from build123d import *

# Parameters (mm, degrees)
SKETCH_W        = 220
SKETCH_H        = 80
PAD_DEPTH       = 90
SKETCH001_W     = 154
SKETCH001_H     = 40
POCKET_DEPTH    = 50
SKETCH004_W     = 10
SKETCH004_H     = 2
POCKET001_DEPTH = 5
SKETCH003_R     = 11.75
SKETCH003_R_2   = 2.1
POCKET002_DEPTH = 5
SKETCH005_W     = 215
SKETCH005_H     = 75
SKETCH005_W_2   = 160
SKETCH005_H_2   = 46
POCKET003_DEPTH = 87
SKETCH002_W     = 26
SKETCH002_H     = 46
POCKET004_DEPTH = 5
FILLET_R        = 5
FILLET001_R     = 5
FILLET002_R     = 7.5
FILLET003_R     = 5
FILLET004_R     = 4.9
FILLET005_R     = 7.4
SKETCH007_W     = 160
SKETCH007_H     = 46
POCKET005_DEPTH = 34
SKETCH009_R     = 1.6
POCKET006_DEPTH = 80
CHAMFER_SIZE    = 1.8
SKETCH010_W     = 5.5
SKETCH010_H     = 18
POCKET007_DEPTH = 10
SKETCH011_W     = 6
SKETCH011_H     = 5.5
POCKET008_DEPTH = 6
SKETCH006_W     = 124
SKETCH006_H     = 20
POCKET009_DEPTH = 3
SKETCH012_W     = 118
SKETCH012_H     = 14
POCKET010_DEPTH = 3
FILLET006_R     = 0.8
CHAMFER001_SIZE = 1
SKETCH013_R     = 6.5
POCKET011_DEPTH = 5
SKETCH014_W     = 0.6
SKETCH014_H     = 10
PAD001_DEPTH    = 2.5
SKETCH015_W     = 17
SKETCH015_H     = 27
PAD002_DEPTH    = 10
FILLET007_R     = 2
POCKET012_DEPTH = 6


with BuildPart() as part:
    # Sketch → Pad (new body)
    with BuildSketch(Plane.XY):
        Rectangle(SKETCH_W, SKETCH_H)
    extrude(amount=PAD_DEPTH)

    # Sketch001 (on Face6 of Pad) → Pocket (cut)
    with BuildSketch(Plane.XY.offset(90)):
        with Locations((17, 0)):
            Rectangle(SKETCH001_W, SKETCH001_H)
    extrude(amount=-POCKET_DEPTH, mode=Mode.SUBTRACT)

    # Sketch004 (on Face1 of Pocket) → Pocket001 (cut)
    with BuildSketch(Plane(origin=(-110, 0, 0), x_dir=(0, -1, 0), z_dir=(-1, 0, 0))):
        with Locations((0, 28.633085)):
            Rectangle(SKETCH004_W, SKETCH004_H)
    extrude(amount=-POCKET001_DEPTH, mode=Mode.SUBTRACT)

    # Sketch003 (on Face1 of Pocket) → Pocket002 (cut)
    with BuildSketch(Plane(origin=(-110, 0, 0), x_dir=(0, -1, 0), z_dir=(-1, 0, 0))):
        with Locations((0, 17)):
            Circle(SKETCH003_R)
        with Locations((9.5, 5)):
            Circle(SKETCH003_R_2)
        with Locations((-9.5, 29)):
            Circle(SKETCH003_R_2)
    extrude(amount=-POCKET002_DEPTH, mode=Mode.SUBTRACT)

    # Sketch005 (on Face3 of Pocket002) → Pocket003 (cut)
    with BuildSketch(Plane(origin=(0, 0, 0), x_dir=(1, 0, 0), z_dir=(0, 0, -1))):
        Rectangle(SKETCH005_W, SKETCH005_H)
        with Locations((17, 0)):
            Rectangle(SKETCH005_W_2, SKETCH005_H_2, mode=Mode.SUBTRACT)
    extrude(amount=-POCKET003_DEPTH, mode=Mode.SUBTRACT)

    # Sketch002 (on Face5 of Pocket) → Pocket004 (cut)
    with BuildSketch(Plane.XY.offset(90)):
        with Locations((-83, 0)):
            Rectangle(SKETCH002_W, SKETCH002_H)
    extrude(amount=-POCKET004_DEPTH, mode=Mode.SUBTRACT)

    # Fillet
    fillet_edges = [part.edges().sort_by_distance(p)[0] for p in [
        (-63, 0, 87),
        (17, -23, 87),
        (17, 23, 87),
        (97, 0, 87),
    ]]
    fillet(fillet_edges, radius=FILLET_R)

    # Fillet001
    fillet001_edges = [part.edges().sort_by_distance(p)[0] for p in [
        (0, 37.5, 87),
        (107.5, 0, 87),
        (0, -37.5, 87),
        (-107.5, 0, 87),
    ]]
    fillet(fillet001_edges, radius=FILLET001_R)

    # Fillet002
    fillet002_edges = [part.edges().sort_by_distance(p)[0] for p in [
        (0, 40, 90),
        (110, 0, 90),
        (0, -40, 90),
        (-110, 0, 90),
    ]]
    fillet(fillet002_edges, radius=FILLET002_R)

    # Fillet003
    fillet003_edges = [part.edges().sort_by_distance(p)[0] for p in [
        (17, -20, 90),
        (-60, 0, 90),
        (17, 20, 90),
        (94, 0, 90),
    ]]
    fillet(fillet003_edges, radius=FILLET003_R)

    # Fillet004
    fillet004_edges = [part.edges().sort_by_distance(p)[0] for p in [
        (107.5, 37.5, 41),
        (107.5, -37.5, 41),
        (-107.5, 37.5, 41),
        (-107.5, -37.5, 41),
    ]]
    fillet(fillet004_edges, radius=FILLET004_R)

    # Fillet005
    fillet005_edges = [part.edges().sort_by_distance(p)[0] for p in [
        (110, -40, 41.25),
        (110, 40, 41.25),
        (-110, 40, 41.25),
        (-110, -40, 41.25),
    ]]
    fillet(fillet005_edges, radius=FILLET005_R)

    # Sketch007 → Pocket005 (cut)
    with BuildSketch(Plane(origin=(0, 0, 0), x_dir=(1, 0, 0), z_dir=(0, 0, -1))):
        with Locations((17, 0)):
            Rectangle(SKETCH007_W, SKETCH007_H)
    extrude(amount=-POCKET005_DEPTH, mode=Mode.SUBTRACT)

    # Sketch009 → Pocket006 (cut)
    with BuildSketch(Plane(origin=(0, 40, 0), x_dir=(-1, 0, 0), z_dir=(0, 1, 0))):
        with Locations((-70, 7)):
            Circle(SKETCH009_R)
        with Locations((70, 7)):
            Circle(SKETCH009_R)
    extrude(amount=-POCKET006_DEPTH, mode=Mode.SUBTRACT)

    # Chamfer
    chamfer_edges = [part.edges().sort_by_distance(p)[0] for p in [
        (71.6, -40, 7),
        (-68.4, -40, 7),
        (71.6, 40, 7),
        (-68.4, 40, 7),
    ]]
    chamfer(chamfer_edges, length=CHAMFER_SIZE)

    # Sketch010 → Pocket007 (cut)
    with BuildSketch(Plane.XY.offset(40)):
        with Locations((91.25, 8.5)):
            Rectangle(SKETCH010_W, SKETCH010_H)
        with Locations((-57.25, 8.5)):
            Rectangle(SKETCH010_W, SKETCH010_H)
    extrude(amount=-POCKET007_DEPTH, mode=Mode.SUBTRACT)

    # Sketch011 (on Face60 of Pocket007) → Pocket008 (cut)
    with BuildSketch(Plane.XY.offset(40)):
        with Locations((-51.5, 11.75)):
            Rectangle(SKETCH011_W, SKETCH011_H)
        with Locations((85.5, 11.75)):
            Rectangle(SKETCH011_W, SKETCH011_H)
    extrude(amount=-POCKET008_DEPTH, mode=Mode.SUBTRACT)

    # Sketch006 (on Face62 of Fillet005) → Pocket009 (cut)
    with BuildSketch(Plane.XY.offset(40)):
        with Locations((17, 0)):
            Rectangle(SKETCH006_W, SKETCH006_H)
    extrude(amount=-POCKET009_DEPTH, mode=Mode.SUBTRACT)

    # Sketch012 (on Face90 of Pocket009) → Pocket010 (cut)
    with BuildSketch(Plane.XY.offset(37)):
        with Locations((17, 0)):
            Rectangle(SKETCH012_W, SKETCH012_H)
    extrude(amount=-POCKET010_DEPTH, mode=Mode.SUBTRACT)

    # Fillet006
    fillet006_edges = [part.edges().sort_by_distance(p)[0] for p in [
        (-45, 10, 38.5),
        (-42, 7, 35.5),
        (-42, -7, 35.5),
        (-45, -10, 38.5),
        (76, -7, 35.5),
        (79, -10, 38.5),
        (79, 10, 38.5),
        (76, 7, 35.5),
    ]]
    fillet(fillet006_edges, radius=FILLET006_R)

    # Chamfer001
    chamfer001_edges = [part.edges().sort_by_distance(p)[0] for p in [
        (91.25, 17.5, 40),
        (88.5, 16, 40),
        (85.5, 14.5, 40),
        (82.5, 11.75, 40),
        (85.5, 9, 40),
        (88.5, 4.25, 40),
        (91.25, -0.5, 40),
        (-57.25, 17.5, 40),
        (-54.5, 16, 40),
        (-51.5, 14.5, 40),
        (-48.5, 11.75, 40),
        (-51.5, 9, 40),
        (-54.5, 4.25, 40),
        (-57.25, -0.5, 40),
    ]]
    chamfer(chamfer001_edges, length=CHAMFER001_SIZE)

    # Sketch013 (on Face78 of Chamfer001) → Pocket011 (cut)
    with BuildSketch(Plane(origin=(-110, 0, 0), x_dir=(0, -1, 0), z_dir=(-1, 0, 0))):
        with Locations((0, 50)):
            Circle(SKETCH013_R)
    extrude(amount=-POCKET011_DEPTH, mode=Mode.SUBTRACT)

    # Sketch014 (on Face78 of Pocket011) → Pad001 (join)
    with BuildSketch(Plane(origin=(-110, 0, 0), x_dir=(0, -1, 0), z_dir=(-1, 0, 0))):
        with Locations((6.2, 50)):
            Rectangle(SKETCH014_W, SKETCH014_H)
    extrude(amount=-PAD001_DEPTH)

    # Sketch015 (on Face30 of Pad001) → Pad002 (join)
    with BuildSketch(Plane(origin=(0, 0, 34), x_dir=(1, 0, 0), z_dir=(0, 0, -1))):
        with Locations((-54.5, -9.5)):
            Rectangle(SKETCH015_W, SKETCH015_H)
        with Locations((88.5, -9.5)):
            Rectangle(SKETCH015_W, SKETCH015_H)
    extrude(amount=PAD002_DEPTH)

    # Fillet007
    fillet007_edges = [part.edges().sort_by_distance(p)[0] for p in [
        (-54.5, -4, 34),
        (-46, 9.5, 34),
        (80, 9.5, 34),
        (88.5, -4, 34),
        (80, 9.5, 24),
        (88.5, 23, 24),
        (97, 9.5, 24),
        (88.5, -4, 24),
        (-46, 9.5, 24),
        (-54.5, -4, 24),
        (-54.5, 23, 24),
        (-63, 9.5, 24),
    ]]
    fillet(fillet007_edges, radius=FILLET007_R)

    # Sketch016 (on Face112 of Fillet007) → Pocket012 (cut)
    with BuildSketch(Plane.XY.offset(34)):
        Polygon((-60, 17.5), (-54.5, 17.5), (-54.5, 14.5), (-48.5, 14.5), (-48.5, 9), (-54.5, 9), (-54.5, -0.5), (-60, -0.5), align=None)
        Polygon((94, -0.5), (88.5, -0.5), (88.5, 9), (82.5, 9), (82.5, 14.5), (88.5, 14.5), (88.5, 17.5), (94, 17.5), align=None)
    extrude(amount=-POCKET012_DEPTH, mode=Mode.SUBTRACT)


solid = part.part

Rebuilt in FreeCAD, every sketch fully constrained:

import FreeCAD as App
import Part
import Sketcher
from FreeCAD import Vector


def edges_at(feature, points):
    """Names of the edges that pass closest to the given points."""
    edges = feature.Shape.Edges
    near = lambda p: min(range(len(edges)), key=lambda i: edges[i].distToShape(Part.Vertex(*p))[0])
    return sorted({f"Edge{near(p) + 1}" for p in points})


def add_polygon(sketch, points):
    """Adds a closed chain of lines whose ends are joined by coincident constraints."""
    first, n = sketch.GeometryCount, len(points)
    for a, b in zip(points, points[1:] + points[:1]):
        sketch.addGeometry(Part.LineSegment(App.Vector(*a, 0), App.Vector(*b, 0)), False)
    for i in range(n):
        sketch.addConstraint(Sketcher.Constraint("Coincident", first + i, 2, first + (i + 1) % n, 1))

doc = App.newDocument("Part")
body = doc.addObject("PartDesign::Body", "Body")

sketch1 = doc.addObject("Sketcher::SketchObject", "Sketch")
body.addObject(sketch1)
sketch1.AttachmentSupport = (doc.XY_Plane, [""])
sketch1.MapMode = "FlatFace"
add_polygon(sketch1, [(-110, 40), (-110, -40), (110, -40), (110, 40)])
sketch1.addConstraint(Sketcher.Constraint("Vertical", 0))
sketch1.addConstraint(Sketcher.Constraint("Horizontal", 1))
sketch1.addConstraint(Sketcher.Constraint("Vertical", 2))
sketch1.addConstraint(Sketcher.Constraint("Horizontal", 3))
sketch1.addConstraint(Sketcher.Constraint("Symmetric", 0, 2, 2, 2, -1, 1))
sketch1.addConstraint(Sketcher.Constraint("DistanceX", 1, 1, 1, 2, 220.0))
sketch1.addConstraint(Sketcher.Constraint("DistanceY", 0, 2, 0, 1, 80.0))
pad1 = doc.addObject("PartDesign::Pad", "Pad")
body.addObject(pad1)
pad1.Profile = sketch1
pad1.Length = 90

sketch2 = doc.addObject("Sketcher::SketchObject", "Sketch001")
body.addObject(sketch2)
sketch2.AttachmentSupport = (doc.XY_Plane, [""])
sketch2.MapMode = "FlatFace"
sketch2.AttachmentOffset = App.Placement(Vector(0, 0, 90), App.Rotation())
add_polygon(sketch2, [(-60, 20), (-60, -20), (94, -20), (94, 20)])
sketch2.addConstraint(Sketcher.Constraint("Vertical", 0))
sketch2.addConstraint(Sketcher.Constraint("Horizontal", 1))
sketch2.addConstraint(Sketcher.Constraint("Vertical", 2))
sketch2.addConstraint(Sketcher.Constraint("Horizontal", 3))
sketch2.addConstraint(Sketcher.Constraint("DistanceX", 1, 1, 1, 2, 154.0))
sketch2.addConstraint(Sketcher.Constraint("DistanceY", 0, 2, 0, 1, 40.0))
sketch2.addConstraint(Sketcher.Constraint("DistanceX", 0, 2, -1, 1, 60.0))
sketch2.addConstraint(Sketcher.Constraint("DistanceY", 0, 2, -1, 1, 20.0))
pocket1 = doc.addObject("PartDesign::Pocket", "Pocket")
body.addObject(pocket1)
pocket1.Profile = sketch2
pocket1.Length = 50

sketch3 = doc.addObject("Sketcher::SketchObject", "Sketch002")
body.addObject(sketch3)
sketch3.AttachmentSupport = (doc.YZ_Plane, [""])
sketch3.MapMode = "FlatFace"
sketch3.AttachmentOffset = App.Placement(Vector(0, 0, -110), App.Rotation())
add_polygon(sketch3, [(5, 29.6), (5, 27.6), (-5, 27.6), (-5, 29.6)])
sketch3.addConstraint(Sketcher.Constraint("Vertical", 0))
sketch3.addConstraint(Sketcher.Constraint("Horizontal", 1))
sketch3.addConstraint(Sketcher.Constraint("Vertical", 2))
sketch3.addConstraint(Sketcher.Constraint("Horizontal", 3))
sketch3.addConstraint(Sketcher.Constraint("DistanceX", 1, 2, 1, 1, 10.0))
sketch3.addConstraint(Sketcher.Constraint("DistanceY", 0, 2, 0, 1, 2.0))
sketch3.addConstraint(Sketcher.Constraint("DistanceX", -1, 1, 0, 2, 5.0))
sketch3.addConstraint(Sketcher.Constraint("DistanceY", -1, 1, 0, 2, 27.633085))
pocket2 = doc.addObject("PartDesign::Pocket", "Pocket001")
body.addObject(pocket2)
pocket2.Profile = sketch3
pocket2.Length = 5
pocket2.Reversed = True

sketch4 = doc.addObject("Sketcher::SketchObject", "Sketch003")
body.addObject(sketch4)
sketch4.AttachmentSupport = (doc.YZ_Plane, [""])
sketch4.MapMode = "FlatFace"
sketch4.AttachmentOffset = App.Placement(Vector(0, 0, -110), App.Rotation())
sketch4.addGeometry(Part.Circle(Vector(0, 17, 0), Vector(0, 0, 1), 11.8), False)
sketch4.addGeometry(Part.Circle(Vector(-9.5, 5, 0), Vector(0, 0, 1), 2.1), False)
sketch4.addGeometry(Part.Circle(Vector(9.5, 29, 0), Vector(0, 0, 1), 2.1), False)
sketch4.addConstraint(Sketcher.Constraint("Equal", 1, 2))
sketch4.addConstraint(Sketcher.Constraint("PointOnObject", 0, 3, -2))
sketch4.addConstraint(Sketcher.Constraint("Diameter", 0, 23.5))
sketch4.addConstraint(Sketcher.Constraint("Diameter", 1, 4.2))
sketch4.addConstraint(Sketcher.Constraint("DistanceY", -1, 1, 0, 3, 17.0))
sketch4.addConstraint(Sketcher.Constraint("DistanceY", -1, 1, 1, 3, 5.0))
sketch4.addConstraint(Sketcher.Constraint("DistanceY", -1, 1, 2, 3, 29.0))
sketch4.addConstraint(Sketcher.Constraint("DistanceX", 1, 3, 2, 3, 19.0))
sketch4.addConstraint(Sketcher.Constraint("DistanceX", 1, 3, -1, 1, 9.5))
pocket3 = doc.addObject("PartDesign::Pocket", "Pocket002")
body.addObject(pocket3)
pocket3.Profile = sketch4
pocket3.Length = 5
pocket3.Reversed = True

sketch5 = doc.addObject("Sketcher::SketchObject", "Sketch004")
body.addObject(sketch5)
sketch5.AttachmentSupport = (doc.XY_Plane, [""])
sketch5.MapMode = "FlatFace"
add_polygon(sketch5, [(-108, -38), (-108, 38), (108, 38), (108, -38)])
add_polygon(sketch5, [(97, 23), (-63, 23), (-63, -23), (97, -23)])
sketch5.addConstraint(Sketcher.Constraint("Vertical", 0))
sketch5.addConstraint(Sketcher.Constraint("Horizontal", 1))
sketch5.addConstraint(Sketcher.Constraint("Vertical", 2))
sketch5.addConstraint(Sketcher.Constraint("Horizontal", 3))
sketch5.addConstraint(Sketcher.Constraint("Horizontal", 4))
sketch5.addConstraint(Sketcher.Constraint("Vertical", 5))
sketch5.addConstraint(Sketcher.Constraint("Horizontal", 6))
sketch5.addConstraint(Sketcher.Constraint("Vertical", 7))
sketch5.addConstraint(Sketcher.Constraint("Symmetric", 0, 2, 2, 2, -1, 1))
sketch5.addConstraint(Sketcher.Constraint("DistanceX", 1, 1, 1, 2, 215.0))
sketch5.addConstraint(Sketcher.Constraint("DistanceX", 4, 2, 4, 1, 160.0))
sketch5.addConstraint(Sketcher.Constraint("DistanceY", 0, 1, 0, 2, 75.0))
sketch5.addConstraint(Sketcher.Constraint("DistanceY", 5, 2, 5, 1, 46.0))
sketch5.addConstraint(Sketcher.Constraint("DistanceX", 4, 2, -1, 1, 63.0))
sketch5.addConstraint(Sketcher.Constraint("DistanceY", -1, 1, 4, 2, 23.0))
pocket4 = doc.addObject("PartDesign::Pocket", "Pocket003")
body.addObject(pocket4)
pocket4.Profile = sketch5
pocket4.Length = 87
pocket4.Reversed = True

sketch6 = doc.addObject("Sketcher::SketchObject", "Sketch005")
body.addObject(sketch6)
sketch6.AttachmentSupport = (doc.XY_Plane, [""])
sketch6.MapMode = "FlatFace"
sketch6.AttachmentOffset = App.Placement(Vector(0, 0, 90), App.Rotation())
add_polygon(sketch6, [(-96, 23), (-96, -23), (-70, -23), (-70, 23)])
sketch6.addConstraint(Sketcher.Constraint("Vertical", 0))
sketch6.addConstraint(Sketcher.Constraint("Horizontal", 1))
sketch6.addConstraint(Sketcher.Constraint("Vertical", 2))
sketch6.addConstraint(Sketcher.Constraint("Horizontal", 3))
sketch6.addConstraint(Sketcher.Constraint("DistanceX", 1, 1, 1, 2, 26.0))
sketch6.addConstraint(Sketcher.Constraint("DistanceY", 0, 2, 0, 1, 46.0))
sketch6.addConstraint(Sketcher.Constraint("DistanceX", 0, 2, -1, 1, 96.0))
sketch6.addConstraint(Sketcher.Constraint("DistanceY", 0, 2, -1, 1, 23.0))
pocket5 = doc.addObject("PartDesign::Pocket", "Pocket004")
body.addObject(pocket5)
pocket5.Profile = sketch6
pocket5.Length = 5
doc.recompute()

fillet = doc.addObject("PartDesign::Fillet", "Fillet")
body.addObject(fillet)
fillet.Base = (pocket5, edges_at(pocket5, [
    (-63, 0, 87),
    (17, -23, 87),
    (17, 23, 87),
    (97, 0, 87),
]))
fillet.Radius = 5
doc.recompute()

fillet2 = doc.addObject("PartDesign::Fillet", "Fillet001")
body.addObject(fillet2)
fillet2.Base = (fillet, edges_at(fillet, [
    (0, 37.5, 87),
    (107.5, 0, 87),
    (0, -37.5, 87),
    (-107.5, 0, 87),
]))
fillet2.Radius = 5
doc.recompute()

fillet3 = doc.addObject("PartDesign::Fillet", "Fillet002")
body.addObject(fillet3)
fillet3.Base = (fillet2, edges_at(fillet2, [
    (0, 40, 90),
    (110, 0, 90),
    (0, -40, 90),
    (-110, 0, 90),
]))
fillet3.Radius = 7.5
doc.recompute()

fillet4 = doc.addObject("PartDesign::Fillet", "Fillet003")
body.addObject(fillet4)
fillet4.Base = (fillet3, edges_at(fillet3, [
    (17, -20, 90),
    (-60, 0, 90),
    (17, 20, 90),
    (94, 0, 90),
]))
fillet4.Radius = 5
doc.recompute()

fillet5 = doc.addObject("PartDesign::Fillet", "Fillet004")
body.addObject(fillet5)
fillet5.Base = (fillet4, edges_at(fillet4, [
    (107.5, 37.5, 41),
    (107.5, -37.5, 41),
    (-107.5, 37.5, 41),
    (-107.5, -37.5, 41),
]))
fillet5.Radius = 4.9
doc.recompute()

fillet6 = doc.addObject("PartDesign::Fillet", "Fillet005")
body.addObject(fillet6)
fillet6.Base = (fillet5, edges_at(fillet5, [
    (110, -40, 41.25),
    (110, 40, 41.25),
    (-110, 40, 41.25),
    (-110, -40, 41.25),
]))
fillet6.Radius = 7.4

sketch7 = doc.addObject("Sketcher::SketchObject", "Sketch006")
body.addObject(sketch7)
sketch7.AttachmentSupport = (doc.XY_Plane, [""])
sketch7.MapMode = "FlatFace"
add_polygon(sketch7, [(-63, -23), (-63, 23), (97, 23), (97, -23)])
sketch7.addConstraint(Sketcher.Constraint("Vertical", 0))
sketch7.addConstraint(Sketcher.Constraint("Horizontal", 1))
sketch7.addConstraint(Sketcher.Constraint("Vertical", 2))
sketch7.addConstraint(Sketcher.Constraint("Horizontal", 3))
sketch7.addConstraint(Sketcher.Constraint("DistanceX", 1, 1, 1, 2, 160.0))
sketch7.addConstraint(Sketcher.Constraint("DistanceY", 0, 1, 0, 2, 46.0))
sketch7.addConstraint(Sketcher.Constraint("DistanceX", 0, 2, -1, 1, 63.0))
sketch7.addConstraint(Sketcher.Constraint("DistanceY", -1, 1, 0, 2, 23.0))
pocket6 = doc.addObject("PartDesign::Pocket", "Pocket005")
body.addObject(pocket6)
pocket6.Profile = sketch7
pocket6.Length = 34
pocket6.Reversed = True

sketch8 = doc.addObject("Sketcher::SketchObject", "Sketch007")
body.addObject(sketch8)
sketch8.AttachmentSupport = (doc.XZ_Plane, [""])
sketch8.MapMode = "FlatFace"
sketch8.AttachmentOffset = App.Placement(Vector(0, 0, -40), App.Rotation())
sketch8.addGeometry(Part.Circle(Vector(70, 7, 0), Vector(0, 0, 1), 1.6), False)
sketch8.addGeometry(Part.Circle(Vector(-70, 7, 0), Vector(0, 0, 1), 1.6), False)
sketch8.addConstraint(Sketcher.Constraint("Equal", 0, 1))
sketch8.addConstraint(Sketcher.Constraint("Symmetric", 0, 3, 1, 3, -2))
sketch8.addConstraint(Sketcher.Constraint("Diameter", 0, 3.2))
sketch8.addConstraint(Sketcher.Constraint("DistanceX", -1, 1, 0, 3, 70.0))
sketch8.addConstraint(Sketcher.Constraint("DistanceY", -1, 1, 0, 3, 7.0))
pocket7 = doc.addObject("PartDesign::Pocket", "Pocket006")
body.addObject(pocket7)
pocket7.Profile = sketch8
pocket7.Length = 80
pocket7.Reversed = True
doc.recompute()

chamfer = doc.addObject("PartDesign::Chamfer", "Chamfer")
body.addObject(chamfer)
chamfer.Base = (pocket7, edges_at(pocket7, [
    (71.6, -40, 7),
    (-68.4, -40, 7),
    (71.6, 40, 7),
    (-68.4, 40, 7),
]))
chamfer.Size = 1.8

sketch9 = doc.addObject("Sketcher::SketchObject", "Sketch008")
body.addObject(sketch9)
sketch9.AttachmentSupport = (doc.XY_Plane, [""])
sketch9.MapMode = "FlatFace"
sketch9.AttachmentOffset = App.Placement(Vector(0, 0, 40), App.Rotation())
add_polygon(sketch9, [(88, 18), (88, 0), (94, 0), (94, 18)])
add_polygon(sketch9, [(-60, 18), (-60, 0), (-54, 0), (-54, 18)])
sketch9.addConstraint(Sketcher.Constraint("Vertical", 0))
sketch9.addConstraint(Sketcher.Constraint("Horizontal", 1))
sketch9.addConstraint(Sketcher.Constraint("Vertical", 2))
sketch9.addConstraint(Sketcher.Constraint("Horizontal", 3))
sketch9.addConstraint(Sketcher.Constraint("Vertical", 4))
sketch9.addConstraint(Sketcher.Constraint("Horizontal", 5))
sketch9.addConstraint(Sketcher.Constraint("Vertical", 6))
sketch9.addConstraint(Sketcher.Constraint("Horizontal", 7))
sketch9.addConstraint(Sketcher.Constraint("Horizontal", 1, 2, 4, 2))
sketch9.addConstraint(Sketcher.Constraint("Horizontal", 3, 2, 6, 2))
sketch9.addConstraint(Sketcher.Constraint("Equal", 3, 5))
sketch9.addConstraint(Sketcher.Constraint("DistanceY", 0, 2, 0, 1, 18.0))
sketch9.addConstraint(Sketcher.Constraint("DistanceX", 1, 1, 1, 2, 5.5))
sketch9.addConstraint(Sketcher.Constraint("DistanceX", -1, 1, 1, 2, 94.0))
sketch9.addConstraint(Sketcher.Constraint("DistanceX", 4, 2, -1, 1, 60.0))
sketch9.addConstraint(Sketcher.Constraint("DistanceY", 0, 2, -1, 1, 0.5))
pocket8 = doc.addObject("PartDesign::Pocket", "Pocket007")
body.addObject(pocket8)
pocket8.Profile = sketch9
pocket8.Length = 10

sketch10 = doc.addObject("Sketcher::SketchObject", "Sketch009")
body.addObject(sketch10)
sketch10.AttachmentSupport = (doc.XY_Plane, [""])
sketch10.MapMode = "FlatFace"
sketch10.AttachmentOffset = App.Placement(Vector(0, 0, 40), App.Rotation())
add_polygon(sketch10, [(-54, 14), (-54, 9), (-48, 9), (-48, 14)])
add_polygon(sketch10, [(82, 14), (82, 9), (88, 9), (88, 14)])
sketch10.addConstraint(Sketcher.Constraint("Vertical", 0))
sketch10.addConstraint(Sketcher.Constraint("Horizontal", 1))
sketch10.addConstraint(Sketcher.Constraint("Vertical", 2))
sketch10.addConstraint(Sketcher.Constraint("Horizontal", 3))
sketch10.addConstraint(Sketcher.Constraint("Vertical", 4))
sketch10.addConstraint(Sketcher.Constraint("Horizontal", 5))
sketch10.addConstraint(Sketcher.Constraint("Vertical", 6))
sketch10.addConstraint(Sketcher.Constraint("Horizontal", 7))
sketch10.addConstraint(Sketcher.Constraint("Horizontal", 1, 2, 4, 2))
sketch10.addConstraint(Sketcher.Constraint("Horizontal", 3, 2, 6, 2))
sketch10.addConstraint(Sketcher.Constraint("Equal", 3, 5))
sketch10.addConstraint(Sketcher.Constraint("DistanceX", 1, 1, 1, 2, 6.0))
sketch10.addConstraint(Sketcher.Constraint("DistanceY", 0, 2, 0, 1, 5.5))
sketch10.addConstraint(Sketcher.Constraint("DistanceY", -1, 1, 0, 2, 9.0))
sketch10.addConstraint(Sketcher.Constraint("DistanceX", 1, 2, 4, 2, 131.0))
sketch10.addConstraint(Sketcher.Constraint("DistanceX", 0, 2, -1, 1, 54.5))
pocket9 = doc.addObject("PartDesign::Pocket", "Pocket008")
body.addObject(pocket9)
pocket9.Profile = sketch10
pocket9.Length = 6

sketch11 = doc.addObject("Sketcher::SketchObject", "Sketch010")
body.addObject(sketch11)
sketch11.AttachmentSupport = (doc.XY_Plane, [""])
sketch11.MapMode = "FlatFace"
sketch11.AttachmentOffset = App.Placement(Vector(0, 0, 40), App.Rotation())
add_polygon(sketch11, [(-45, 10), (-45, -10), (79, -10), (79, 10)])
sketch11.addConstraint(Sketcher.Constraint("Vertical", 0))
sketch11.addConstraint(Sketcher.Constraint("Horizontal", 1))
sketch11.addConstraint(Sketcher.Constraint("Vertical", 2))
sketch11.addConstraint(Sketcher.Constraint("Horizontal", 3))
sketch11.addConstraint(Sketcher.Constraint("DistanceX", 1, 1, 1, 2, 124.0))
sketch11.addConstraint(Sketcher.Constraint("DistanceY", 0, 2, 0, 1, 20.0))
sketch11.addConstraint(Sketcher.Constraint("DistanceX", 0, 2, -1, 1, 45.0))
sketch11.addConstraint(Sketcher.Constraint("DistanceY", 0, 2, -1, 1, 10.0))
pocket10 = doc.addObject("PartDesign::Pocket", "Pocket009")
body.addObject(pocket10)
pocket10.Profile = sketch11
pocket10.Length = 3

sketch12 = doc.addObject("Sketcher::SketchObject", "Sketch011")
body.addObject(sketch12)
sketch12.AttachmentSupport = (doc.XY_Plane, [""])
sketch12.MapMode = "FlatFace"
sketch12.AttachmentOffset = App.Placement(Vector(0, 0, 37), App.Rotation())
add_polygon(sketch12, [(-42, 7), (-42, -7), (76, -7), (76, 7)])
sketch12.addConstraint(Sketcher.Constraint("Vertical", 0))
sketch12.addConstraint(Sketcher.Constraint("Horizontal", 1))
sketch12.addConstraint(Sketcher.Constraint("Vertical", 2))
sketch12.addConstraint(Sketcher.Constraint("Horizontal", 3))
sketch12.addConstraint(Sketcher.Constraint("DistanceX", 1, 1, 1, 2, 118.0))
sketch12.addConstraint(Sketcher.Constraint("DistanceY", 0, 2, 0, 1, 14.0))
sketch12.addConstraint(Sketcher.Constraint("DistanceX", 0, 2, -1, 1, 42.0))
sketch12.addConstraint(Sketcher.Constraint("DistanceY", 0, 2, -1, 1, 7.0))
pocket11 = doc.addObject("PartDesign::Pocket", "Pocket010")
body.addObject(pocket11)
pocket11.Profile = sketch12
pocket11.Length = 3
doc.recompute()

fillet7 = doc.addObject("PartDesign::Fillet", "Fillet006")
body.addObject(fillet7)
fillet7.Base = (pocket11, edges_at(pocket11, [
    (-45, 10, 38.5),
    (-42, 7, 35.5),
    (-42, -7, 35.5),
    (-45, -10, 38.5),
    (76, -7, 35.5),
    (79, -10, 38.5),
    (79, 10, 38.5),
    (76, 7, 35.5),
]))
fillet7.Radius = 0.8
doc.recompute()

chamfer2 = doc.addObject("PartDesign::Chamfer", "Chamfer001")
body.addObject(chamfer2)
chamfer2.Base = (fillet7, edges_at(fillet7, [
    (91.25, 17.5, 40),
    (88.5, 16, 40),
    (85.5, 14.5, 40),
    (82.5, 11.75, 40),
    (85.5, 9, 40),
    (88.5, 4.25, 40),
    (91.25, -0.5, 40),
    (-57.25, 17.5, 40),
    (-54.5, 16, 40),
    (-51.5, 14.5, 40),
    (-48.5, 11.75, 40),
    (-51.5, 9, 40),
    (-54.5, 4.25, 40),
    (-57.25, -0.5, 40),
]))
chamfer2.Size = 1

sketch13 = doc.addObject("Sketcher::SketchObject", "Sketch012")
body.addObject(sketch13)
sketch13.AttachmentSupport = (doc.YZ_Plane, [""])
sketch13.MapMode = "FlatFace"
sketch13.AttachmentOffset = App.Placement(Vector(0, 0, -110), App.Rotation())
sketch13.addGeometry(Part.Circle(Vector(0, 50, 0), Vector(0, 0, 1), 6), False)
sketch13.addConstraint(Sketcher.Constraint("PointOnObject", 0, 3, -2))
sketch13.addConstraint(Sketcher.Constraint("Diameter", 0, 13.0))
sketch13.addConstraint(Sketcher.Constraint("DistanceY", -1, 1, 0, 3, 50.0))
pocket12 = doc.addObject("PartDesign::Pocket", "Pocket011")
body.addObject(pocket12)
pocket12.Profile = sketch13
pocket12.Length = 5
pocket12.Reversed = True

sketch14 = doc.addObject("Sketcher::SketchObject", "Sketch013")
body.addObject(sketch14)
sketch14.AttachmentSupport = (doc.YZ_Plane, [""])
sketch14.MapMode = "FlatFace"
sketch14.AttachmentOffset = App.Placement(Vector(0, 0, -110), App.Rotation())
add_polygon(sketch14, [(-5.9, 55), (-5.9, 45), (-6.5, 45), (-6.5, 55)])
sketch14.addConstraint(Sketcher.Constraint("Vertical", 0))
sketch14.addConstraint(Sketcher.Constraint("Horizontal", 1))
sketch14.addConstraint(Sketcher.Constraint("Vertical", 2))
sketch14.addConstraint(Sketcher.Constraint("Horizontal", 3))
sketch14.addConstraint(Sketcher.Constraint("DistanceY", 0, 2, 0, 1, 10.0))
sketch14.addConstraint(Sketcher.Constraint("DistanceX", 1, 2, 1, 1, 0.6))
sketch14.addConstraint(Sketcher.Constraint("DistanceY", -1, 1, 0, 2, 45.0))
sketch14.addConstraint(Sketcher.Constraint("DistanceX", 0, 2, -1, 1, 5.9))
pad2 = doc.addObject("PartDesign::Pad", "Pad001")
body.addObject(pad2)
pad2.Profile = sketch14
pad2.Length = 2.5

sketch15 = doc.addObject("Sketcher::SketchObject", "Sketch014")
body.addObject(sketch15)
sketch15.AttachmentSupport = (doc.XY_Plane, [""])
sketch15.MapMode = "FlatFace"
sketch15.AttachmentOffset = App.Placement(Vector(0, 0, 34), App.Rotation())
add_polygon(sketch15, [(-63, -4), (-63, 23), (-46, 23), (-46, -4)])
add_polygon(sketch15, [(80, -4), (80, 23), (97, 23), (97, -4)])
sketch15.addConstraint(Sketcher.Constraint("Vertical", 0))
sketch15.addConstraint(Sketcher.Constraint("Horizontal", 1))
sketch15.addConstraint(Sketcher.Constraint("Vertical", 2))
sketch15.addConstraint(Sketcher.Constraint("Horizontal", 3))
sketch15.addConstraint(Sketcher.Constraint("Vertical", 4))
sketch15.addConstraint(Sketcher.Constraint("Horizontal", 5))
sketch15.addConstraint(Sketcher.Constraint("Vertical", 6))
sketch15.addConstraint(Sketcher.Constraint("Horizontal", 7))
sketch15.addConstraint(Sketcher.Constraint("Horizontal", 1, 2, 4, 2))
sketch15.addConstraint(Sketcher.Constraint("Horizontal", 3, 2, 6, 2))
sketch15.addConstraint(Sketcher.Constraint("Equal", 3, 5))
sketch15.addConstraint(Sketcher.Constraint("DistanceX", 1, 1, 1, 2, 17.0))
sketch15.addConstraint(Sketcher.Constraint("DistanceY", 0, 1, 0, 2, 27.0))
sketch15.addConstraint(Sketcher.Constraint("DistanceX", 0, 2, -1, 1, 63.0))
sketch15.addConstraint(Sketcher.Constraint("DistanceY", -1, 1, 0, 2, 23.0))
sketch15.addConstraint(Sketcher.Constraint("DistanceX", -1, 1, 4, 2, 80.0))
pad3 = doc.addObject("PartDesign::Pad", "Pad002")
body.addObject(pad3)
pad3.Profile = sketch15
pad3.Length = 10
pad3.Reversed = True
doc.recompute()

fillet8 = doc.addObject("PartDesign::Fillet", "Fillet007")
body.addObject(fillet8)
fillet8.Base = (pad3, edges_at(pad3, [
    (-54.5, -4, 34),
    (-46, 9.5, 34),
    (80, 9.5, 34),
    (88.5, -4, 34),
    (80, 9.5, 24),
    (88.5, 23, 24),
    (97, 9.5, 24),
    (88.5, -4, 24),
    (-46, 9.5, 24),
    (-54.5, -4, 24),
    (-54.5, 23, 24),
    (-63, 9.5, 24),
]))
fillet8.Radius = 2

sketch16 = doc.addObject("Sketcher::SketchObject", "Sketch015")
body.addObject(sketch16)
sketch16.AttachmentSupport = (doc.XY_Plane, [""])
sketch16.MapMode = "FlatFace"
sketch16.AttachmentOffset = App.Placement(Vector(0, 0, 34), App.Rotation())
add_polygon(sketch16, [(-54.5, 17.5), (-60, 17.5), (-60, -0.5), (-54.5, -0.5), (-54.5, 9), (-48.5, 9), (-48.5, 14.5), (-54.5, 14.5)])
add_polygon(sketch16, [(88.5, -0.5), (94, -0.5), (94, 17.5), (88.5, 17.5), (88.5, 14.5), (82.5, 14.5), (82.5, 9), (88.5, 9)])
sketch16.addConstraint(Sketcher.Constraint("Horizontal", 0))
sketch16.addConstraint(Sketcher.Constraint("Vertical", 1))
sketch16.addConstraint(Sketcher.Constraint("Horizontal", 2))
sketch16.addConstraint(Sketcher.Constraint("Vertical", 3))
sketch16.addConstraint(Sketcher.Constraint("Horizontal", 4))
sketch16.addConstraint(Sketcher.Constraint("Vertical", 5))
sketch16.addConstraint(Sketcher.Constraint("Horizontal", 6))
sketch16.addConstraint(Sketcher.Constraint("Vertical", 7))
sketch16.addConstraint(Sketcher.Constraint("Horizontal", 8))
sketch16.addConstraint(Sketcher.Constraint("Vertical", 9))
sketch16.addConstraint(Sketcher.Constraint("Horizontal", 10))
sketch16.addConstraint(Sketcher.Constraint("Vertical", 11))
sketch16.addConstraint(Sketcher.Constraint("Horizontal", 12))
sketch16.addConstraint(Sketcher.Constraint("Vertical", 13))
sketch16.addConstraint(Sketcher.Constraint("Horizontal", 14))
sketch16.addConstraint(Sketcher.Constraint("Vertical", 15))
sketch16.addConstraint(Sketcher.Constraint("Horizontal", 2, 2, 8, 2))
sketch16.addConstraint(Sketcher.Constraint("Horizontal", 7, 2, 9, 2))
sketch16.addConstraint(Sketcher.Constraint("Horizontal", 6, 2, 11, 2))
sketch16.addConstraint(Sketcher.Constraint("Horizontal", 4, 2, 13, 2))
sketch16.addConstraint(Sketcher.Constraint("Vertical", 3, 2, 6, 2))
sketch16.addConstraint(Sketcher.Constraint("Vertical", 11, 2, 14, 2))
sketch16.addConstraint(Sketcher.Constraint("Equal", 2, 8))
sketch16.addConstraint(Sketcher.Constraint("Equal", 6, 12))
sketch16.addConstraint(Sketcher.Constraint("Equal", 10, 5))
sketch16.addConstraint(Sketcher.Constraint("DistanceX", 4, 1, 4, 2, 6.0))
sketch16.addConstraint(Sketcher.Constraint("DistanceY", 1, 2, 1, 1, 18.0))
sketch16.addConstraint(Sketcher.Constraint("DistanceY", 7, 1, 7, 2, 3.0))
sketch16.addConstraint(Sketcher.Constraint("DistanceX", 0, 2, 0, 1, 5.5))
sketch16.addConstraint(Sketcher.Constraint("DistanceX", 0, 2, -1, 1, 60.0))
sketch16.addConstraint(Sketcher.Constraint("DistanceY", -1, 1, 3, 2, 9.0))
sketch16.addConstraint(Sketcher.Constraint("DistanceX", -1, 1, 8, 2, 94.0))
pocket13 = doc.addObject("PartDesign::Pocket", "Pocket012")
body.addObject(pocket13)
pocket13.Profile = sketch16
pocket13.Length = 6

doc.recompute()
